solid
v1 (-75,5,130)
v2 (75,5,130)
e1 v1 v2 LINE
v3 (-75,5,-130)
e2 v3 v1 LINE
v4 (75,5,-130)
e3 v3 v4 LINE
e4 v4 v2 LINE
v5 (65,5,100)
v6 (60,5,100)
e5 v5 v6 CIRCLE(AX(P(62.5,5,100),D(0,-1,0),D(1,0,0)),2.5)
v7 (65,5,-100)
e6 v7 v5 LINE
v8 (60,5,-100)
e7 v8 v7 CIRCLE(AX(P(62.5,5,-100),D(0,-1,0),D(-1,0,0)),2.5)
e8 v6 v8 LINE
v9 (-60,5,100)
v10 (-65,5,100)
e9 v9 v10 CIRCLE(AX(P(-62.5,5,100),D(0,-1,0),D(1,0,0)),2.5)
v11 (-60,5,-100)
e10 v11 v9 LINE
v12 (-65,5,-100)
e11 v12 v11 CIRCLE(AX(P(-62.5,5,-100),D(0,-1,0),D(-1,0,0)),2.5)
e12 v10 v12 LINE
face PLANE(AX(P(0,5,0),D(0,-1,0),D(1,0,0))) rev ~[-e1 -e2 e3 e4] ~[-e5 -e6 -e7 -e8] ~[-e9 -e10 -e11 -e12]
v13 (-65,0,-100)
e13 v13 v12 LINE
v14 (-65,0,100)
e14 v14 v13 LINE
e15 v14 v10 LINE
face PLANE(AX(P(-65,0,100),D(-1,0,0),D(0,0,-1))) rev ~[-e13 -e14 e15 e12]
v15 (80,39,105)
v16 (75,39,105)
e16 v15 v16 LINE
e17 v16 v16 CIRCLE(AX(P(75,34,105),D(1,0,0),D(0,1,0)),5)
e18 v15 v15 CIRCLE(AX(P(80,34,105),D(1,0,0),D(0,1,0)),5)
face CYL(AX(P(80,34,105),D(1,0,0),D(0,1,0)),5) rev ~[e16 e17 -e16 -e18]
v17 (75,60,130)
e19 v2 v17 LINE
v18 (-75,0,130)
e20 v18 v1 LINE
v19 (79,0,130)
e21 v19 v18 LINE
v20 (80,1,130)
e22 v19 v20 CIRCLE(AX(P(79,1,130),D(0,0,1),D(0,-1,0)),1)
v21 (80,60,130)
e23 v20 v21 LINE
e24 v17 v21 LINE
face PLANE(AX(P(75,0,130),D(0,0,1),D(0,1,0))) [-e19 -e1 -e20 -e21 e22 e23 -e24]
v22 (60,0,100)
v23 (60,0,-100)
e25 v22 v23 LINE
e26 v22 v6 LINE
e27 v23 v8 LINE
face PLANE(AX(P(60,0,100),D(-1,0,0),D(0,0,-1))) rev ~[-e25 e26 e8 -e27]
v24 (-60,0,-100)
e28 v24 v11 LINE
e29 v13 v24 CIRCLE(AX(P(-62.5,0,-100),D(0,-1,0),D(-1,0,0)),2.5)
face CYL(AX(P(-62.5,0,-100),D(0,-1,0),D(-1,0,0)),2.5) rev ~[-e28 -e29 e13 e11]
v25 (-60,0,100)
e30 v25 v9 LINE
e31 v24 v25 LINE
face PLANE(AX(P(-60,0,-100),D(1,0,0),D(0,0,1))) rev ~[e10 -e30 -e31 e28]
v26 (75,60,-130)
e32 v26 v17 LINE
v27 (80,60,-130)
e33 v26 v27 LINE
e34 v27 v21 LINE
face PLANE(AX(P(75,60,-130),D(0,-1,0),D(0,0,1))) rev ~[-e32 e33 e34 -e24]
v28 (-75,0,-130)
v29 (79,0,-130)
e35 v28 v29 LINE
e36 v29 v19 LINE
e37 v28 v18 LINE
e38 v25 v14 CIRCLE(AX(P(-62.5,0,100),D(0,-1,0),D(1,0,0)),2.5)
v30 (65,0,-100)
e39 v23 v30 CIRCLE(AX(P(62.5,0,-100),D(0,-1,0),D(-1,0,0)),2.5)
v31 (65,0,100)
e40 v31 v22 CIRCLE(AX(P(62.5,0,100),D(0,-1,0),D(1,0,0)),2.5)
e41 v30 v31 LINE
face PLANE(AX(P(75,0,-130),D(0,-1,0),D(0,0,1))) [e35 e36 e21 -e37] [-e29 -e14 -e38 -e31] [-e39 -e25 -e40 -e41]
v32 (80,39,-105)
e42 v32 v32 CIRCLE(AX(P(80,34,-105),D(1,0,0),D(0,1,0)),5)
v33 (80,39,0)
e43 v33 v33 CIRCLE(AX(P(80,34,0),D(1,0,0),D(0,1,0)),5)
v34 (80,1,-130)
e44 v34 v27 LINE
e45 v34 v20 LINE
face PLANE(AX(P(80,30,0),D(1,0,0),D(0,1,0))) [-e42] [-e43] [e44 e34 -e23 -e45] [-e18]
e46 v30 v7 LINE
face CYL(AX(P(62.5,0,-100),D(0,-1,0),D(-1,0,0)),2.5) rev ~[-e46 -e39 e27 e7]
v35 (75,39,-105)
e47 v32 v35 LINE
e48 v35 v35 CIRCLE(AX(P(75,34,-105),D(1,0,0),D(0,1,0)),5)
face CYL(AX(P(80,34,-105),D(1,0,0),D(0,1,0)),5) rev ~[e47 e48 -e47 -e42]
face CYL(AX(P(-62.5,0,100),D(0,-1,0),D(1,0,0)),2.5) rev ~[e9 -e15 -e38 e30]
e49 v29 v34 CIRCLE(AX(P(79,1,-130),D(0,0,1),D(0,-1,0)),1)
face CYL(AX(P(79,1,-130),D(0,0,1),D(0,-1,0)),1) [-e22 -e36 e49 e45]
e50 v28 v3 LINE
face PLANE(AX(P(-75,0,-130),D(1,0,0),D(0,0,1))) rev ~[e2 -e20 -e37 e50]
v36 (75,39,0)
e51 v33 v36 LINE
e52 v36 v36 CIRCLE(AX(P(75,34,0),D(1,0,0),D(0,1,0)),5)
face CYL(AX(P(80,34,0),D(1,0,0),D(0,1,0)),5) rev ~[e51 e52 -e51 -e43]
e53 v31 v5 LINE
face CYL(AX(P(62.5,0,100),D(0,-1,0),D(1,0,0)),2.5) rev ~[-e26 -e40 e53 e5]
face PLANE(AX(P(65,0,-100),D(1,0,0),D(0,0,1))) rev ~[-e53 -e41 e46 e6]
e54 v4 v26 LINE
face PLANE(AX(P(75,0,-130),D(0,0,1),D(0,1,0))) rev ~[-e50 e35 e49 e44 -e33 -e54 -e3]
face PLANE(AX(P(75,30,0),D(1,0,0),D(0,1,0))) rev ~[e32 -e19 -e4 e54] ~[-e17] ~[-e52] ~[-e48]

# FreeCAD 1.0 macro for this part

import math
import FreeCAD as App
import Part
import Sketcher
Q = App.Units.Quantity


def edges_at(feature, points):
    """Names of the edges that pass closest to the given points."""
    edges = feature.Shape.Edges
    near = lambda p: min(range(len(edges)), key=lambda i: edges[i].distToShape(Part.Vertex(*p))[0])
    return sorted({f"Edge{near(p) + 1}" for p in points})

doc = App.newDocument("Part")
params = doc.addObject("Spreadsheet::Sheet", "Params")
for row, (alias, value) in enumerate([
    ("sketch1_width", "150 mm"),
    ("sketch1_height", "260 mm"),
    ("pad1_length", "5 mm"),
    ("sketch2_radius", "2.5 mm"),
    ("sketch2_height", "200 mm"),
    ("pocket1_length", "6 mm"),
    ("sketch3_radius", "2.5 mm"),
    ("sketch3_height", "200 mm"),
    ("pocket2_length", "6 mm"),
    ("sketch4_radius", "2.5 mm"),
    ("sketch4_height", "200 mm"),
    ("pocket3_length", "6 mm"),
    ("sketch5_radius", "2.5 mm"),
    ("sketch5_height", "200 mm"),
    ("pocket4_length", "6 mm"),
    ("sketch6_radius", "2.5 mm"),
    ("sketch6_height", "200 mm"),
    ("pocket5_length", "6 mm"),
    ("sketch7_width", "60 mm"),
    ("sketch7_height", "260 mm"),
    ("pad2_length", "5 mm"),
    ("sketch8_diameter", "10 mm"),
    ("pocket6_length", "6 mm"),
    ("fillet_radius", "1 mm"),
], start=1):
    params.set(f"A{row}", alias)
    params.set(f"B{row}", "=" + value)
    params.setAlias(f"B{row}", alias)

body = doc.addObject("PartDesign::Body", "Body")

# Sketch on XZ plane
sketch1 = body.newObject("Sketcher::SketchObject", "Sketch")
sketch1.AttachmentSupport = (doc.getObject("XZ_Plane"), [""])
sketch1.MapMode = "FlatFace"
sketch1.addGeometry(Part.LineSegment(App.Vector(-75, 130, 0), App.Vector(-75, -130, 0)), False)
sketch1.addGeometry(Part.LineSegment(App.Vector(-75, -130, 0), App.Vector(75, -130, 0)), False)
sketch1.addGeometry(Part.LineSegment(App.Vector(75, -130, 0), App.Vector(75, 130, 0)), False)
sketch1.addGeometry(Part.LineSegment(App.Vector(75, 130, 0), App.Vector(-75, 130, 0)), False)
sketch1.addConstraint(Sketcher.Constraint("Coincident", 0, 2, 1, 1))
sketch1.addConstraint(Sketcher.Constraint("Coincident", 1, 2, 2, 1))
sketch1.addConstraint(Sketcher.Constraint("Coincident", 2, 2, 3, 1))
sketch1.addConstraint(Sketcher.Constraint("Coincident", 3, 2, 0, 1))
sketch1.addConstraint(Sketcher.Constraint("Vertical", 0))
sketch1.addConstraint(Sketcher.Constraint("Horizontal", 1))
sketch1.addConstraint(Sketcher.Constraint("Vertical", 2))
sketch1.addConstraint(Sketcher.Constraint("Horizontal", 3))
sketch1.addConstraint(Sketcher.Constraint("Symmetric", 0, 2, 2, 2, -1, 1))
sketch1.addConstraint(Sketcher.Constraint("DistanceX", 1, 1, 1, 2, Q("150 mm")))
sketch1.addConstraint(Sketcher.Constraint("DistanceY", 0, 2, 0, 1, Q("260 mm")))
sketch1.setExpression("Constraints[9]", "Params.sketch1_width")
sketch1.setExpression("Constraints[10]", "Params.sketch1_height")
pad1 = body.newObject("PartDesign::Pad", "Pad")
pad1.Profile = sketch1
pad1.setExpression("Length", "Params.pad1_length")
pad1.Reversed = True

# Sketch on XZ plane
sketch2 = body.newObject("Sketcher::SketchObject", "Sketch001")
sketch2.AttachmentSupport = (doc.getObject("XZ_Plane"), [""])
sketch2.MapMode = "FlatFace"
sketch2.addGeometry(Part.ArcOfCircle(Part.Circle(App.Vector(-62.5, 100, 0), App.Vector(0, 0, 1), 2.5), math.radians(0), math.radians(180)), False)
sketch2.addGeometry(Part.LineSegment(App.Vector(-65, 100, 0), App.Vector(-65, -100, 0)), False)
sketch2.addGeometry(Part.ArcOfCircle(Part.Circle(App.Vector(-62.5, -100, 0), App.Vector(0, 0, 1), 2.5), math.radians(180), math.radians(360)), False)
sketch2.addGeometry(Part.LineSegment(App.Vector(-60, -100, 0), App.Vector(-60, 100, 0)), False)
sketch2.addConstraint(Sketcher.Constraint("Tangent", 0, 2, 1, 1))
sketch2.addConstraint(Sketcher.Constraint("Tangent", 1, 2, 2, 1))
sketch2.addConstraint(Sketcher.Constraint("Tangent", 2, 2, 3, 1))
sketch2.addConstraint(Sketcher.Constraint("Tangent", 3, 2, 0, 1))
sketch2.addConstraint(Sketcher.Constraint("Vertical", 1))
sketch2.addConstraint(Sketcher.Constraint("Vertical", 3))
sketch2.addConstraint(Sketcher.Constraint("Radius", 0, Q("2.5 mm")))
sketch2.addConstraint(Sketcher.Constraint("DistanceY", 1, 2, 1, 1, Q("200 mm")))
sketch2.addConstraint(Sketcher.Constraint("DistanceY", -1, 1, 0, 3, Q("100 mm")))
sketch2.addConstraint(Sketcher.Constraint("DistanceX", 0, 2, -1, 1, Q("65 mm")))
sketch2.setExpression("Constraints[6]", "Params.sketch2_radius")
sketch2.setExpression("Constraints[7]", "Params.sketch2_height")
pocket1 = body.newObject("PartDesign::Pocket", "Pocket")
pocket1.Profile = sketch2
pocket1.setExpression("Length", "Params.pocket1_length")

# Sketch on XZ plane
sketch3 = body.newObject("Sketcher::SketchObject", "Sketch002")
sketch3.AttachmentSupport = (doc.getObject("XZ_Plane"), [""])
sketch3.MapMode = "FlatFace"
sketch3.addGeometry(Part.ArcOfCircle(Part.Circle(App.Vector(62.5, 100, 0), App.Vector(0, 0, 1), 2.5), math.radians(0), math.radians(180)), False)
sketch3.addGeometry(Part.LineSegment(App.Vector(60, 100, 0), App.Vector(60, -100, 0)), False)
sketch3.addGeometry(Part.ArcOfCircle(Part.Circle(App.Vector(62.5, -100, 0), App.Vector(0, 0, 1), 2.5), math.radians(180), math.radians(360)), False)
sketch3.addGeometry(Part.LineSegment(App.Vector(65, -100, 0), App.Vector(65, 100, 0)), False)
sketch3.addConstraint(Sketcher.Constraint("Tangent", 0, 2, 1, 1))
sketch3.addConstraint(Sketcher.Constraint("Tangent", 1, 2, 2, 1))
sketch3.addConstraint(Sketcher.Constraint("Tangent", 2, 2, 3, 1))
sketch3.addConstraint(Sketcher.Constraint("Tangent", 3, 2, 0, 1))
sketch3.addConstraint(Sketcher.Constraint("Vertical", 1))
sketch3.addConstraint(Sketcher.Constraint("Vertical", 3))
sketch3.addConstraint(Sketcher.Constraint("Radius", 0, Q("2.5 mm")))
sketch3.addConstraint(Sketcher.Constraint("DistanceY", 1, 2, 1, 1, Q("200 mm")))
sketch3.addConstraint(Sketcher.Constraint("DistanceY", -1, 1, 0, 3, Q("100 mm")))
sketch3.addConstraint(Sketcher.Constraint("DistanceX", -1, 1, 0, 2, Q("60 mm")))
sketch3.setExpression("Constraints[6]", "Params.sketch3_radius")
sketch3.setExpression("Constraints[7]", "Params.sketch3_height")
pocket2 = body.newObject("PartDesign::Pocket", "Pocket001")
pocket2.Profile = sketch3
pocket2.setExpression("Length", "Params.pocket2_length")

# Sketch on XZ plane
sketch4 = body.newObject("Sketcher::SketchObject", "Sketch003")
sketch4.AttachmentSupport = (doc.getObject("XZ_Plane"), [""])
sketch4.MapMode = "FlatFace"
sketch4.addGeometry(Part.ArcOfCircle(Part.Circle(App.Vector(62.5, 100, 0), App.Vector(0, 0, 1), 2.5), math.radians(0), math.radians(180)), False)
sketch4.addGeometry(Part.LineSegment(App.Vector(60, 100, 0), App.Vector(60, -100, 0)), False)
sketch4.addGeometry(Part.ArcOfCircle(Part.Circle(App.Vector(62.5, -100, 0), App.Vector(0, 0, 1), 2.5), math.radians(180), math.radians(360)), False)
sketch4.addGeometry(Part.LineSegment(App.Vector(65, -100, 0), App.Vector(65, 100, 0)), False)
sketch4.addConstraint(Sketcher.Constraint("Tangent", 0, 2, 1, 1))
sketch4.addConstraint(Sketcher.Constraint("Tangent", 1, 2, 2, 1))
sketch4.addConstraint(Sketcher.Constraint("Tangent", 2, 2, 3, 1))
sketch4.addConstraint(Sketcher.Constraint("Tangent", 3, 2, 0, 1))
sketch4.addConstraint(Sketcher.Constraint("Vertical", 1))
sketch4.addConstraint(Sketcher.Constraint("Vertical", 3))
sketch4.addConstraint(Sketcher.Constraint("Radius", 0, Q("2.5 mm")))
sketch4.addConstraint(Sketcher.Constraint("DistanceY", 1, 2, 1, 1, Q("200 mm")))
sketch4.addConstraint(Sketcher.Constraint("DistanceY", -1, 1, 0, 3, Q("100 mm")))
sketch4.addConstraint(Sketcher.Constraint("DistanceX", -1, 1, 0, 2, Q("60 mm")))
sketch4.setExpression("Constraints[6]", "Params.sketch4_radius")
sketch4.setExpression("Constraints[7]", "Params.sketch4_height")
pocket3 = body.newObject("PartDesign::Pocket", "Pocket002")
pocket3.Profile = sketch4
pocket3.setExpression("Length", "Params.pocket3_length")

# Sketch on XZ plane
sketch5 = body.newObject("Sketcher::SketchObject", "Sketch004")
sketch5.AttachmentSupport = (doc.getObject("XZ_Plane"), [""])
sketch5.MapMode = "FlatFace"
sketch5.addGeometry(Part.ArcOfCircle(Part.Circle(App.Vector(-62.5, 100, 0), App.Vector(0, 0, 1), 2.5), math.radians(0), math.radians(180)), False)
sketch5.addGeometry(Part.LineSegment(App.Vector(-65, 100, 0), App.Vector(-65, -100, 0)), False)
sketch5.addGeometry(Part.ArcOfCircle(Part.Circle(App.Vector(-62.5, -100, 0), App.Vector(0, 0, 1), 2.5), math.radians(180), math.radians(360)), False)
sketch5.addGeometry(Part.LineSegment(App.Vector(-60, -100, 0), App.Vector(-60, 100, 0)), False)
sketch5.addConstraint(Sketcher.Constraint("Tangent", 0, 2, 1, 1))
sketch5.addConstraint(Sketcher.Constraint("Tangent", 1, 2, 2, 1))
sketch5.addConstraint(Sketcher.Constraint("Tangent", 2, 2, 3, 1))
sketch5.addConstraint(Sketcher.Constraint("Tangent", 3, 2, 0, 1))
sketch5.addConstraint(Sketcher.Constraint("Vertical", 1))
sketch5.addConstraint(Sketcher.Constraint("Vertical", 3))
sketch5.addConstraint(Sketcher.Constraint("Radius", 0, Q("2.5 mm")))
sketch5.addConstraint(Sketcher.Constraint("DistanceY", 1, 2, 1, 1, Q("200 mm")))
sketch5.addConstraint(Sketcher.Constraint("DistanceY", -1, 1, 0, 3, Q("100 mm")))
sketch5.addConstraint(Sketcher.Constraint("DistanceX", 0, 2, -1, 1, Q("65 mm")))
sketch5.setExpression("Constraints[6]", "Params.sketch5_radius")
sketch5.setExpression("Constraints[7]", "Params.sketch5_height")
pocket4 = body.newObject("PartDesign::Pocket", "Pocket003")
pocket4.Profile = sketch5
pocket4.setExpression("Length", "Params.pocket4_length")

# Sketch on XZ plane
sketch6 = body.newObject("Sketcher::SketchObject", "Sketch005")
sketch6.AttachmentSupport = (doc.getObject("XZ_Plane"), [""])
sketch6.MapMode = "FlatFace"
sketch6.addGeometry(Part.ArcOfCircle(Part.Circle(App.Vector(62.5, 100, 0), App.Vector(0, 0, 1), 2.5), math.radians(0), math.radians(180)), False)
sketch6.addGeometry(Part.LineSegment(App.Vector(60, 100, 0), App.Vector(60, -100, 0)), False)
sketch6.addGeometry(Part.ArcOfCircle(Part.Circle(App.Vector(62.5, -100, 0), App.Vector(0, 0, 1), 2.5), math.radians(180), math.radians(360)), False)
sketch6.addGeometry(Part.LineSegment(App.Vector(65, -100, 0), App.Vector(65, 100, 0)), False)
sketch6.addConstraint(Sketcher.Constraint("Tangent", 0, 2, 1, 1))
sketch6.addConstraint(Sketcher.Constraint("Tangent", 1, 2, 2, 1))
sketch6.addConstraint(Sketcher.Constraint("Tangent", 2, 2, 3, 1))
sketch6.addConstraint(Sketcher.Constraint("Tangent", 3, 2, 0, 1))
sketch6.addConstraint(Sketcher.Constraint("Vertical", 1))
sketch6.addConstraint(Sketcher.Constraint("Vertical", 3))
sketch6.addConstraint(Sketcher.Constraint("Radius", 0, Q("2.5 mm")))
sketch6.addConstraint(Sketcher.Constraint("DistanceY", 1, 2, 1, 1, Q("200 mm")))
sketch6.addConstraint(Sketcher.Constraint("DistanceY", -1, 1, 0, 3, Q("100 mm")))
sketch6.addConstraint(Sketcher.Constraint("DistanceX", -1, 1, 0, 2, Q("60 mm")))
sketch6.setExpression("Constraints[6]", "Params.sketch6_radius")
sketch6.setExpression("Constraints[7]", "Params.sketch6_height")
pocket5 = body.newObject("PartDesign::Pocket", "Pocket004")
pocket5.Profile = sketch6
pocket5.setExpression("Length", "Params.pocket5_length")

# Sketch on YZ plane
sketch7 = body.newObject("Sketcher::SketchObject", "Sketch006")
sketch7.AttachmentSupport = (doc.getObject("YZ_Plane"), [""])
sketch7.MapMode = "FlatFace"
sketch7.AttachmentOffset = App.Placement(App.Vector(0, 0, 75), App.Rotation())
sketch7.addGeometry(Part.LineSegment(App.Vector(0, 130, 0), App.Vector(0, -130, 0)), False)
sketch7.addGeometry(Part.LineSegment(App.Vector(0, -130, 0), App.Vector(60, -130, 0)), False)
sketch7.addGeometry(Part.LineSegment(App.Vector(60, -130, 0), App.Vector(60, 130, 0)), False)
sketch7.addGeometry(Part.LineSegment(App.Vector(60, 130, 0), App.Vector(0, 130, 0)), False)
sketch7.addConstraint(Sketcher.Constraint("Coincident", 0, 2, 1, 1))
sketch7.addConstraint(Sketcher.Constraint("Coincident", 1, 2, 2, 1))
sketch7.addConstraint(Sketcher.Constraint("Coincident", 2, 2, 3, 1))
sketch7.addConstraint(Sketcher.Constraint("Coincident", 3, 2, 0, 1))
sketch7.addConstraint(Sketcher.Constraint("Vertical", 0))
sketch7.addConstraint(Sketcher.Constraint("Horizontal", 1))
sketch7.addConstraint(Sketcher.Constraint("Vertical", 2))
sketch7.addConstraint(Sketcher.Constraint("Horizontal", 3))
sketch7.addConstraint(Sketcher.Constraint("Symmetric", 0, 2, 3, 2, -1, 1))
sketch7.addConstraint(Sketcher.Constraint("DistanceX", 1, 1, 1, 2, Q("60 mm")))
sketch7.addConstraint(Sketcher.Constraint("DistanceY", 0, 2, 0, 1, Q("260 mm")))
sketch7.setExpression("Constraints[9]", "Params.sketch7_width")
sketch7.setExpression("Constraints[10]", "Params.sketch7_height")
pad2 = body.newObject("PartDesign::Pad", "Pad001")
pad2.Profile = sketch7
pad2.setExpression("Length", "Params.pad2_length")

# Sketch on YZ plane
sketch8 = body.newObject("Sketcher::SketchObject", "Sketch007")
sketch8.AttachmentSupport = (doc.getObject("YZ_Plane"), [""])
sketch8.MapMode = "FlatFace"
sketch8.AttachmentOffset = App.Placement(App.Vector(0, 0, 80), App.Rotation())
sketch8.addGeometry(Part.Circle(App.Vector(34, 0, 0), App.Vector(0, 0, 1), 5), False)
sketch8.addGeometry(Part.Circle(App.Vector(34, 105, 0), App.Vector(0, 0, 1), 5), False)
sketch8.addGeometry(Part.Circle(App.Vector(34, -105, 0), App.Vector(0, 0, 1), 5), False)
sketch8.addConstraint(Sketcher.Constraint("Equal", 0, 1))
sketch8.addConstraint(Sketcher.Constraint("Equal", 1, 2))
sketch8.addConstraint(Sketcher.Constraint("Symmetric", 1, 3, 2, 3, -1))
sketch8.addConstraint(Sketcher.Constraint("PointOnObject", 0, 3, -1))
sketch8.addConstraint(Sketcher.Constraint("Vertical", 0, 3, 1, 3))
sketch8.addConstraint(Sketcher.Constraint("Diameter", 0, Q("10 mm")))
sketch8.addConstraint(Sketcher.Constraint("DistanceX", -1, 1, 0, 3, Q("34 mm")))
sketch8.addConstraint(Sketcher.Constraint("DistanceY", -1, 1, 1, 3, Q("105 mm")))
sketch8.setExpression("Constraints[5]", "Params.sketch8_diameter")
pocket6 = body.newObject("PartDesign::Pocket", "Pocket005")
pocket6.Profile = sketch8
pocket6.setExpression("Length", "Params.pocket6_length")
doc.recompute()

fillet = body.newObject("PartDesign::Fillet", "Fillet")
fillet.Base = (pocket6, edges_at(pocket6, [(80, 0, 0)]))
fillet.setExpression("Radius", "Params.fillet_radius")

doc.recompute()
